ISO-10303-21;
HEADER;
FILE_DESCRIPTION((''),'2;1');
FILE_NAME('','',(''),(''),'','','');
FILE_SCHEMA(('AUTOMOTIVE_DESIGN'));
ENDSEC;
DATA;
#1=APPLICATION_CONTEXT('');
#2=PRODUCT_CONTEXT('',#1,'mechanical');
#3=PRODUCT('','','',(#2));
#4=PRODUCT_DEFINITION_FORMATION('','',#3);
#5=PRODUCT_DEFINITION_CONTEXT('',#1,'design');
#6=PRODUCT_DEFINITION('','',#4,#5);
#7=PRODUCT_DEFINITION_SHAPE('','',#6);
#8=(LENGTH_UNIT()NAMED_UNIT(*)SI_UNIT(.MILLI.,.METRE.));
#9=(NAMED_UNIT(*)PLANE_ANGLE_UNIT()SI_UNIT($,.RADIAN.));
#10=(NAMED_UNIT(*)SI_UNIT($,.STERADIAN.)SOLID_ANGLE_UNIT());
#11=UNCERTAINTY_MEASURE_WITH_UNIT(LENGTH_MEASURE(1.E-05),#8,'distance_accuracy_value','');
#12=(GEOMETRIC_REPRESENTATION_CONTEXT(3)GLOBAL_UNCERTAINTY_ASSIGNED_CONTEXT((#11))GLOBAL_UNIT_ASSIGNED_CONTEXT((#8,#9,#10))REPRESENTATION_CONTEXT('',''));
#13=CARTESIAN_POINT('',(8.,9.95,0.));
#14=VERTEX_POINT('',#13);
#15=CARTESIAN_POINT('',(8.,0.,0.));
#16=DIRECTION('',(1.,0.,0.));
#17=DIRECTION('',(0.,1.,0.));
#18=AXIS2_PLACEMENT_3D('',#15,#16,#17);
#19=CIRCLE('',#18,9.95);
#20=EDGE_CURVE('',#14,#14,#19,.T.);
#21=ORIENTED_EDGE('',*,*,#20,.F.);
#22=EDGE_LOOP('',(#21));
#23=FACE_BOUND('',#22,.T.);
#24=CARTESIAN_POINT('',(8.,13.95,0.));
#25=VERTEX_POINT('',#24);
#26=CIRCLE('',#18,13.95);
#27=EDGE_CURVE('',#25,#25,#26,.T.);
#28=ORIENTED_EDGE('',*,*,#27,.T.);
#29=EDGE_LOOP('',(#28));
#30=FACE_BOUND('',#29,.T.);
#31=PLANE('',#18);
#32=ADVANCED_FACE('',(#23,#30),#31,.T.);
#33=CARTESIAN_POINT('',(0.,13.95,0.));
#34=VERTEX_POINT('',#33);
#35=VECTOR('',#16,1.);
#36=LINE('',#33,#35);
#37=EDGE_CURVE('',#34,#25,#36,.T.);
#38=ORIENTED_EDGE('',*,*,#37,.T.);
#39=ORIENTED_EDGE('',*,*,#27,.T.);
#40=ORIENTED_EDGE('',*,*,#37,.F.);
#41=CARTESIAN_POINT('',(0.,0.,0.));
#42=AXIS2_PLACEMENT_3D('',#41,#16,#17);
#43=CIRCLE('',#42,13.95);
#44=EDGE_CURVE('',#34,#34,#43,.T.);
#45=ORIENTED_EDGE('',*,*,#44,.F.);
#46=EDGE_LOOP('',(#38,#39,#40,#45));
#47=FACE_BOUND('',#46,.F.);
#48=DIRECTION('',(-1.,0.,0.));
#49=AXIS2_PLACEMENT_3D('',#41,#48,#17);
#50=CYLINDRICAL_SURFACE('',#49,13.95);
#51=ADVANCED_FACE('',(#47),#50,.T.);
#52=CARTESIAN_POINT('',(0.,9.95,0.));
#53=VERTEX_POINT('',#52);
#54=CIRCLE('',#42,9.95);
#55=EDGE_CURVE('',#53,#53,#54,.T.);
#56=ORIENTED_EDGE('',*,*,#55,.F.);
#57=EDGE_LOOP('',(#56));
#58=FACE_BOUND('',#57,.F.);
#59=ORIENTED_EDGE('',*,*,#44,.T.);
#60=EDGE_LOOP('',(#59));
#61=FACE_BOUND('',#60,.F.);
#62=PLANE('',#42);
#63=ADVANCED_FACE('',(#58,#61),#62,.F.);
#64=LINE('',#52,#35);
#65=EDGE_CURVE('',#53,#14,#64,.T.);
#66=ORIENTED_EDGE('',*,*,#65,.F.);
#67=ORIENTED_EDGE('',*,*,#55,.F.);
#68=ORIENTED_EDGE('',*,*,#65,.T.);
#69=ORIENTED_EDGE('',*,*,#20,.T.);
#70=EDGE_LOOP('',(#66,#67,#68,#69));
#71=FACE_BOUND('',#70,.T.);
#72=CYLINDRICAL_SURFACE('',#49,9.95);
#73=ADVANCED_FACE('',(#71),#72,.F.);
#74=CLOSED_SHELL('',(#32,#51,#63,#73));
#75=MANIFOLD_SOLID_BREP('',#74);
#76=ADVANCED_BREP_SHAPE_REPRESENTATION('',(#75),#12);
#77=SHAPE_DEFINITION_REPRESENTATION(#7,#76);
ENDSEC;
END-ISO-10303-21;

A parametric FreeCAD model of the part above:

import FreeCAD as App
import Part
import Sketcher
Q = App.Units.Quantity

doc = App.newDocument("Part")
body = doc.addObject("PartDesign::Body", "Body")

# Sketch on YZ plane
sketch1 = body.newObject("Sketcher::SketchObject", "Sketch")
sketch1.AttachmentSupport = (doc.getObject("YZ_Plane"), [""])
sketch1.MapMode = "FlatFace"
sketch1.addGeometry([
    Part.Circle(App.Vector(0, 0, 0), App.Vector(0, 0, 1), 13.95),
    Part.Circle(App.Vector(0, 0, 0), App.Vector(0, 0, 1), 9.95),
], False)
sketch1.addConstraint([
    Sketcher.Constraint("Coincident", 0, 3, -1, 1),
    Sketcher.Constraint("Coincident", 1, 3, -1, 1),
    Sketcher.Constraint("Diameter", 0, Q("27.9 mm")),
    Sketcher.Constraint("Diameter", 1, Q("19.9 mm")),
])
pad1 = body.newObject("PartDesign::Pad", "Pad")
pad1.Profile = sketch1
pad1.Length = 8

doc.recompute()
